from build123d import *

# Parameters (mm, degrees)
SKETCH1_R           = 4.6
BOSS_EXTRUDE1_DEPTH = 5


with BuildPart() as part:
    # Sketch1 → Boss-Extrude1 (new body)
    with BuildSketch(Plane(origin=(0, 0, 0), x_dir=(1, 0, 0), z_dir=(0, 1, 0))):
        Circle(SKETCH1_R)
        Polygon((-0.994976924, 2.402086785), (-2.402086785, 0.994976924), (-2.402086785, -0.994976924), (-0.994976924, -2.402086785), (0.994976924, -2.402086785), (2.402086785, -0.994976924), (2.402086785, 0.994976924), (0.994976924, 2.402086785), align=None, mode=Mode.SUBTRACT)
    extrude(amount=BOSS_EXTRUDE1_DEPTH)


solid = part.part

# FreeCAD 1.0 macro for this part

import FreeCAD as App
import Part
import Sketcher


def add_polygon(sketch, points):
    """Adds a closed chain of lines whose ends are joined by coincident constraints."""
    first, n = sketch.GeometryCount, len(points)
    for a, b in zip(points, points[1:] + points[:1]):
        sketch.addGeometry(Part.LineSegment(App.Vector(*a, 0), App.Vector(*b, 0)), False)
    for i in range(n):
        sketch.addConstraint(Sketcher.Constraint("Coincident", first + i, 2, first + (i + 1) % n, 1))

doc = App.newDocument("Part")
params = doc.addObject("Spreadsheet::Sheet", "Params")
for row, (alias, value) in enumerate([
    ("sketch1_diameter", "9.2 mm"),
    ("pad1_length", "5 mm"),
], start=1):
    params.set(f"A{row}", alias)
    params.set(f"B{row}", "=" + value)
    params.setAlias(f"B{row}", alias)

body = doc.addObject("PartDesign::Body", "Body")

# Sketch on XZ plane
sketch1 = doc.addObject("Sketcher::SketchObject", "Sketch")
body.addObject(sketch1)
sketch1.AttachmentSupport = (doc.XZ_Plane, [""])
sketch1.MapMode = "FlatFace"
sketch1.addGeometry(Part.Circle(App.Vector(0, 0, 0), App.Vector(0, 0, 1), 4.6), False)  # 0
add_polygon(sketch1, [(-2.402087, -0.994977), (-0.994977, -2.402087), (0.994977, -2.402087), (2.402087, -0.994977), (2.402087, 0.994977), (0.994977, 2.402087), (-0.994977, 2.402087), (-2.402087, 0.994977)])  # lines 1-8
sketch1.addConstraint(Sketcher.Constraint("Horizontal", 2))
sketch1.addConstraint(Sketcher.Constraint("Vertical", 4))
sketch1.addConstraint(Sketcher.Constraint("Horizontal", 6))
sketch1.addConstraint(Sketcher.Constraint("Vertical", 8))
sketch1.addConstraint(Sketcher.Constraint("Coincident", 0, 3, -1, 1))
sketch1.addConstraint(Sketcher.Constraint("Symmetric", 1, 2, 5, 2, -1, 1))
sketch1.addConstraint(Sketcher.Constraint("Symmetric", 3, 2, 7, 2, -1, 1))
sketch1.addConstraint(Sketcher.Constraint("Perpendicular", 1, 3))
sketch1.addConstraint(Sketcher.Constraint("Perpendicular", 3, 5))
sketch1.addConstraint(Sketcher.Constraint("Perpendicular", 5, 7))
sketch1.addConstraint(Sketcher.Constraint("Horizontal", 4, 2, 7, 2))
sketch1.addConstraint(Sketcher.Constraint("Vertical", 2, 2, 5, 2))
sketch1.addConstraint(Sketcher.Constraint("Equal", 6, 4))
sketch1.addConstraint(Sketcher.Constraint("Diameter", 0, 9.2))
sketch1.addConstraint(Sketcher.Constraint("DistanceX", 2, 1, 2, 2, 1.989954))
sketch1.addConstraint(Sketcher.Constraint("DistanceX", 2, 2, 3, 2, 1.40711))
sketch1.setExpression("Constraints[21]", "Params.sketch1_diameter")
pad1 = doc.addObject("PartDesign::Pad", "Pad")
body.addObject(pad1)
pad1.Profile = sketch1
pad1.setExpression("Length", "Params.pad1_length")
pad1.Reversed = True

doc.recompute()
